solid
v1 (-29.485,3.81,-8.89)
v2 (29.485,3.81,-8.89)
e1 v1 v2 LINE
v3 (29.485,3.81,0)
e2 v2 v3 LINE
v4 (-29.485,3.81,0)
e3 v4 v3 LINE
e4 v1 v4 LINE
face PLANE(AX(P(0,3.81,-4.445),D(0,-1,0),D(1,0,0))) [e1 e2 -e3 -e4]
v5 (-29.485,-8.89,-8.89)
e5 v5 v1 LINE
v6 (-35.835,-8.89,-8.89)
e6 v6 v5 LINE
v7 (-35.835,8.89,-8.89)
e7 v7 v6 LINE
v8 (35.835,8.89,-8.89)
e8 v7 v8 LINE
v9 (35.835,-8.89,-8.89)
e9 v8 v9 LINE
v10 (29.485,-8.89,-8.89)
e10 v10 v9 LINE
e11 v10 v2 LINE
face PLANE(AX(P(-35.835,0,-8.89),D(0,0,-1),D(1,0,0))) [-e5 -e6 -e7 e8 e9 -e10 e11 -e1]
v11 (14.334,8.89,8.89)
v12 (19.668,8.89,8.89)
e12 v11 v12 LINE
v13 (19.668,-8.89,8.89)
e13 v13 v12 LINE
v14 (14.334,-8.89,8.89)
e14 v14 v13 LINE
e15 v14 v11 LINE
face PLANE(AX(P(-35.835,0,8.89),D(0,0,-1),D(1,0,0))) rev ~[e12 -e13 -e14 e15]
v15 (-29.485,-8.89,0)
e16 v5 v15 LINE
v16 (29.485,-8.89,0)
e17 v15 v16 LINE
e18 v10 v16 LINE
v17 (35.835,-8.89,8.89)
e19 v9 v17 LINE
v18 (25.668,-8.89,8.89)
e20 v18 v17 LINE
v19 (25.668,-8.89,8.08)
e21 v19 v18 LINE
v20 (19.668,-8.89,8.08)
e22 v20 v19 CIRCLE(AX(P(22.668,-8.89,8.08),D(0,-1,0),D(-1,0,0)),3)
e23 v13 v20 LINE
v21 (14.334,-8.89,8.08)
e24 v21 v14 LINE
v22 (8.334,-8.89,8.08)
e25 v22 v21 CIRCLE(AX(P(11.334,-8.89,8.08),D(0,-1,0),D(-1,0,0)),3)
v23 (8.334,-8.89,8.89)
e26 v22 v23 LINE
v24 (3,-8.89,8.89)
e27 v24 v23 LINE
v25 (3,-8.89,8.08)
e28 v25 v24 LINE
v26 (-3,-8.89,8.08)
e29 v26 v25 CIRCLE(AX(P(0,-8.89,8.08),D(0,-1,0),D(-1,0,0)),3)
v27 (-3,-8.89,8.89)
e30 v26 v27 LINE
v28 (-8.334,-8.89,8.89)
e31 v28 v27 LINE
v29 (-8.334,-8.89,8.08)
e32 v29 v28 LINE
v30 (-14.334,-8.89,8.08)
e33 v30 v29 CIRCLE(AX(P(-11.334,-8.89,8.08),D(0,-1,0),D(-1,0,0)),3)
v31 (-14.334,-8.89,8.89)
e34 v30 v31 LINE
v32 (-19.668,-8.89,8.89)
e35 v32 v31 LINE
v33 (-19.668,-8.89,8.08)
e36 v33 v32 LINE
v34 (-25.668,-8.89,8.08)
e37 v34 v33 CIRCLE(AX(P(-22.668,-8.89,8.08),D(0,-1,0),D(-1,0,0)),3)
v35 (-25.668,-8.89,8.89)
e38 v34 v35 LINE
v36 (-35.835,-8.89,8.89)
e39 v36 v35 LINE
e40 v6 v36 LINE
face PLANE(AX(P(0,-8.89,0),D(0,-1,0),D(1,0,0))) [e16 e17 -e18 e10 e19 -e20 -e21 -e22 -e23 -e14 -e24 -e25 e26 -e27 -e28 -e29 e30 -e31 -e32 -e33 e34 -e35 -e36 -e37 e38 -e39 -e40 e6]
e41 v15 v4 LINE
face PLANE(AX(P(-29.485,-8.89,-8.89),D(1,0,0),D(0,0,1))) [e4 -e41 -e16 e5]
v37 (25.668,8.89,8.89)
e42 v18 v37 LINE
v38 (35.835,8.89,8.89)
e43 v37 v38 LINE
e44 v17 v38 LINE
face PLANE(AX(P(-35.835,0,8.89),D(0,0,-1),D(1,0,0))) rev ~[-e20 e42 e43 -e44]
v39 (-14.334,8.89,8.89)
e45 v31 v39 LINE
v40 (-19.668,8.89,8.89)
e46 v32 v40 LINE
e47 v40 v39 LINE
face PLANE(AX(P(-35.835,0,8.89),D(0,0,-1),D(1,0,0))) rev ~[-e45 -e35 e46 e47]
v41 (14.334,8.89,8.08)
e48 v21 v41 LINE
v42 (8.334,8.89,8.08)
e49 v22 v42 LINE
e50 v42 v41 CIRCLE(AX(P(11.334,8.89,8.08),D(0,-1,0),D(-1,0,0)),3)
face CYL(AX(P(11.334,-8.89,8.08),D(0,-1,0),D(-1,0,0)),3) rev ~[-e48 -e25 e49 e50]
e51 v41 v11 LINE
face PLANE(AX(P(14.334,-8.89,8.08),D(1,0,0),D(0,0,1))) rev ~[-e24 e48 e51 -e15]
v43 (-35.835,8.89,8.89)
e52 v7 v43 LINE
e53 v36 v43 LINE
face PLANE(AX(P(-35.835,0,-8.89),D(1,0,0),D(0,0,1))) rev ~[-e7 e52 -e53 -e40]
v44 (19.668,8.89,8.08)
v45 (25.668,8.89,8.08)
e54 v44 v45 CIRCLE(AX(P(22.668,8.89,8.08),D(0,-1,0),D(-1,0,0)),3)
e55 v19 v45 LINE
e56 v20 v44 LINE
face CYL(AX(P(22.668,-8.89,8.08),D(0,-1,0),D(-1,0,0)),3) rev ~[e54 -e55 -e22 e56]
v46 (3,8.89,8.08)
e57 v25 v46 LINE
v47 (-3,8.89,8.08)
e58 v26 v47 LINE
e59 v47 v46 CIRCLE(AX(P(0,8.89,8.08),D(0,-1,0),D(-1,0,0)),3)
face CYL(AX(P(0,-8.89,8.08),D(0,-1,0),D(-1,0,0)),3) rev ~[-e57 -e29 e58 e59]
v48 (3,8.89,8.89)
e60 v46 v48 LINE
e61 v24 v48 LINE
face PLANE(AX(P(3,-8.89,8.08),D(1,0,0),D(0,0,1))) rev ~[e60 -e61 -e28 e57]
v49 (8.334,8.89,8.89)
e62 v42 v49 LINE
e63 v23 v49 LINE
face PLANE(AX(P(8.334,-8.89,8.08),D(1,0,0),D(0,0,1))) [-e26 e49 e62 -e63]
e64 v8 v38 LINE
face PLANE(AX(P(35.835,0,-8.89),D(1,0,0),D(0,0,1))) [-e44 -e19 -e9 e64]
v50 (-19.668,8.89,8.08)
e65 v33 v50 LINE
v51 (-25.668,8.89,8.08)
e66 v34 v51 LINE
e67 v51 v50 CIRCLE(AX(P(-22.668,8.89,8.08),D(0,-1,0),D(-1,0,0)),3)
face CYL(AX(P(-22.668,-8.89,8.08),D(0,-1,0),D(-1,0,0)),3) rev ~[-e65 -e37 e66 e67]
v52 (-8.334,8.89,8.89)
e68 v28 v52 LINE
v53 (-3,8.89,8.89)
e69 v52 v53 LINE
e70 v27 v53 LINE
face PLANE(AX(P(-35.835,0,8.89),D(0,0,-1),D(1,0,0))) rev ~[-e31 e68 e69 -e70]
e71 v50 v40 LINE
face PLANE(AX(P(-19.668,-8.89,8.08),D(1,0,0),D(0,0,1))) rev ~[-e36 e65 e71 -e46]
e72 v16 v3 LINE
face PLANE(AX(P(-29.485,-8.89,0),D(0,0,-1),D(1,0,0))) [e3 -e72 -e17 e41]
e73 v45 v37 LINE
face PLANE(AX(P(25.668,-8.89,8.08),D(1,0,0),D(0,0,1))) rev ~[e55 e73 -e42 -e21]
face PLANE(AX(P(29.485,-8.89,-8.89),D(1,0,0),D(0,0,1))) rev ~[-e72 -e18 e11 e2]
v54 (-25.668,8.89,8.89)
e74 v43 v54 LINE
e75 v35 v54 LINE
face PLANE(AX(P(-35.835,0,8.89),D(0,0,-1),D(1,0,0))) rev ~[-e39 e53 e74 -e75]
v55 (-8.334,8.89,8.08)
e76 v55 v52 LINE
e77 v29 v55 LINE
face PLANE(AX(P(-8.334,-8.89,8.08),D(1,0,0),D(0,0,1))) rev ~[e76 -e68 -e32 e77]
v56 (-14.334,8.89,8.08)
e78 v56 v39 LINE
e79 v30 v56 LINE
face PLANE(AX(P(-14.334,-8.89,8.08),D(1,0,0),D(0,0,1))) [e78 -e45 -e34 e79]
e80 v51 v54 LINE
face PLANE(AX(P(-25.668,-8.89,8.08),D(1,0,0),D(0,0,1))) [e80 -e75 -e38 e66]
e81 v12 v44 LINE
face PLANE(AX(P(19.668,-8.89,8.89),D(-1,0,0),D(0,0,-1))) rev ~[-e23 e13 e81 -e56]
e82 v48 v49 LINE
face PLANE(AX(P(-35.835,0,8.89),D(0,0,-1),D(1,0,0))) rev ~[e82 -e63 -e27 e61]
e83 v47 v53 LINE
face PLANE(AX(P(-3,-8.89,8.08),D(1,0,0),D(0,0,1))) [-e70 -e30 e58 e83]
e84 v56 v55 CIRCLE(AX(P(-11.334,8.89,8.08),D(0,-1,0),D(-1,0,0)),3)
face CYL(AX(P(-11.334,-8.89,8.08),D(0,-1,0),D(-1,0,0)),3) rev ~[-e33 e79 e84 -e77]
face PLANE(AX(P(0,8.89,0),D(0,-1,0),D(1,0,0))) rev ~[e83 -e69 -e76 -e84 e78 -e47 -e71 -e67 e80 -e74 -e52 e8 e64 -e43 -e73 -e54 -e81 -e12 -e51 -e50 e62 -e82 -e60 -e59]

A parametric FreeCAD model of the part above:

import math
import FreeCAD as App
import Part
import Sketcher
from FreeCAD import Vector
Q = App.Units.Quantity


def add_polygon(sketch, points):
    """Adds a closed chain of lines whose ends are joined by coincident constraints."""
    first, n = sketch.GeometryCount, len(points)
    for a, b in zip(points, points[1:] + points[:1]):
        sketch.addGeometry(Part.LineSegment(App.Vector(*a, 0), App.Vector(*b, 0)), False)
    for i in range(n):
        sketch.addConstraint(Sketcher.Constraint("Coincident", first + i, 2, first + (i + 1) % n, 1))

doc = App.newDocument("Part")
params = doc.addObject("Spreadsheet::Sheet", "Params")
for row, (alias, value) in enumerate([
    ("sketch1_height", "0.7 in"),
    ("pad1_length", "0.7 in"),
    ("sketch3_height", "0.35 in"),
    ("pocket2_length", "0.5 in"),
], start=1):
    params.set(f"A{row}", alias)
    params.set(f"B{row}", "=" + value)
    params.setAlias(f"B{row}", alias)

body = doc.addObject("PartDesign::Body", "Body")

sketch1 = body.newObject("Sketcher::SketchObject", "Sketch")
sketch1.AttachmentSupport = (doc.getObject("XZ_Plane"), [""])
sketch1.MapMode = "FlatFace"
add_polygon(sketch1, [(-35.835, 8.89), (-35.835, -8.89), (35.835, -8.89), (35.835, 8.89)])
sketch1.addConstraint([
    Sketcher.Constraint("Vertical", 0),
    Sketcher.Constraint("Horizontal", 1),
    Sketcher.Constraint("Vertical", 2),
    Sketcher.Constraint("Horizontal", 3),
    Sketcher.Constraint("Symmetric", 0, 2, 2, 2, -1, 1),
    Sketcher.Constraint("DistanceY", 0, 2, 0, 1, Q("0.7 in")),
    Sketcher.Constraint("DistanceX", 1, 1, 1, 2, 71.67),
])
sketch1.setExpression("Constraints[9]", "Params.sketch1_height")
pad1 = body.newObject("PartDesign::Pad", "Pad")
pad1.Profile = sketch1
pad1.setExpression("Length", "Params.pad1_length")
pad1.Midplane = True

sketch2 = body.newObject("Sketcher::SketchObject", "Sketch001")
sketch2.AttachmentSupport = (doc.getObject("XZ_Plane"), [""])
sketch2.MapMode = "FlatFace"
sketch2.AttachmentOffset = App.Placement(Vector(0, 0, 0.35 * 25.4), App.Rotation())
sketch2.addGeometry([
    Part.LineSegment(Vector(-25.668, 8.89, 0), Vector(-25.668, 8.08, 0)),
    Part.ArcOfCircle(Part.Circle(Vector(-22.668, 8.08, 0), Vector(0, 0, 1), 3), math.radians(180), math.radians(360)),
    Part.LineSegment(Vector(-19.668, 8.08, 0), Vector(-19.668, 8.89, 0)),
    Part.LineSegment(Vector(-19.668, 8.89, 0), Vector(-25.668, 8.89, 0)),
    Part.LineSegment(Vector(-14.334, 8.89, 0), Vector(-14.334, 8.08, 0)),
    Part.ArcOfCircle(Part.Circle(Vector(-11.334, 8.08, 0), Vector(0, 0, 1), 3), math.radians(180), math.radians(360)),
    Part.LineSegment(Vector(-8.334, 8.08, 0), Vector(-8.334, 8.89, 0)),
    Part.LineSegment(Vector(-8.334, 8.89, 0), Vector(-14.334, 8.89, 0)),
    Part.LineSegment(Vector(-3, 8.89, 0), Vector(-3, 8.08, 0)),
    Part.ArcOfCircle(Part.Circle(Vector(0, 8.08, 0), Vector(0, 0, 1), 3), math.radians(180), math.radians(360)),
    Part.LineSegment(Vector(3, 8.08, 0), Vector(3, 8.89, 0)),
    Part.LineSegment(Vector(3, 8.89, 0), Vector(-3, 8.89, 0)),
    Part.LineSegment(Vector(8.334, 8.89, 0), Vector(8.334, 8.08, 0)),
    Part.ArcOfCircle(Part.Circle(Vector(11.334, 8.08, 0), Vector(0, 0, 1), 3), math.radians(180), math.radians(360)),
    Part.LineSegment(Vector(14.334, 8.08, 0), Vector(14.334, 8.89, 0)),
    Part.LineSegment(Vector(14.334, 8.89, 0), Vector(8.334, 8.89, 0)),
    Part.LineSegment(Vector(25.668, 8.08, 0), Vector(25.668, 8.89, 0)),
    Part.LineSegment(Vector(25.668, 8.89, 0), Vector(19.668, 8.89, 0)),
    Part.LineSegment(Vector(19.668, 8.89, 0), Vector(19.668, 8.08, 0)),
    Part.ArcOfCircle(Part.Circle(Vector(22.668, 8.08, 0), Vector(0, 0, 1), 3), math.radians(180), math.radians(360)),
], False)
sketch2.addConstraint([
    Sketcher.Constraint("Tangent", 0, 2, 1, 1),
    Sketcher.Constraint("Tangent", 1, 2, 2, 1),
    Sketcher.Constraint("Coincident", 2, 2, 3, 1),
    Sketcher.Constraint("Coincident", 3, 2, 0, 1),
    Sketcher.Constraint("Tangent", 4, 2, 5, 1),
    Sketcher.Constraint("Tangent", 5, 2, 6, 1),
    Sketcher.Constraint("Coincident", 6, 2, 7, 1),
    Sketcher.Constraint("Coincident", 7, 2, 4, 1),
    Sketcher.Constraint("Tangent", 8, 2, 9, 1),
    Sketcher.Constraint("Tangent", 9, 2, 10, 1),
    Sketcher.Constraint("Coincident", 10, 2, 11, 1),
    Sketcher.Constraint("Coincident", 11, 2, 8, 1),
    Sketcher.Constraint("Tangent", 12, 2, 13, 1),
    Sketcher.Constraint("Tangent", 13, 2, 14, 1),
    Sketcher.Constraint("Coincident", 14, 2, 15, 1),
    Sketcher.Constraint("Coincident", 15, 2, 12, 1),
    Sketcher.Constraint("Coincident", 16, 2, 17, 1),
    Sketcher.Constraint("Coincident", 17, 2, 18, 1),
    Sketcher.Constraint("Tangent", 18, 2, 19, 1),
    Sketcher.Constraint("Tangent", 19, 2, 16, 1),
    Sketcher.Constraint("Vertical", 0),
    Sketcher.Constraint("Vertical", 2),
    Sketcher.Constraint("Horizontal", 3),
    Sketcher.Constraint("Vertical", 4),
    Sketcher.Constraint("Vertical", 6),
    Sketcher.Constraint("Horizontal", 7),
    Sketcher.Constraint("Vertical", 8),
    Sketcher.Constraint("Vertical", 10),
    Sketcher.Constraint("Horizontal", 11),
    Sketcher.Constraint("Vertical", 12),
    Sketcher.Constraint("Vertical", 14),
    Sketcher.Constraint("Horizontal", 15),
    Sketcher.Constraint("Vertical", 16),
    Sketcher.Constraint("Horizontal", 17),
    Sketcher.Constraint("Vertical", 18),
    Sketcher.Constraint("Equal", 1, 5),
    Sketcher.Constraint("Equal", 5, 9),
    Sketcher.Constraint("Equal", 9, 13),
    Sketcher.Constraint("Equal", 13, 19),
    Sketcher.Constraint("Symmetric", 5, 3, 13, 3, -2),
    Sketcher.Constraint("Symmetric", 1, 3, 19, 3, -2),
    Sketcher.Constraint("PointOnObject", 9, 3, -2),
    Sketcher.Constraint("Horizontal", 1, 3, 5, 3),
    Sketcher.Constraint("Horizontal", 5, 3, 9, 3),
    Sketcher.Constraint("Horizontal", 3, 2, 6, 2),
    Sketcher.Constraint("Horizontal", 7, 2, 10, 2),
    Sketcher.Constraint("Horizontal", 11, 2, 14, 2),
    Sketcher.Constraint("Horizontal", 15, 2, 16, 2),
    Sketcher.Constraint("DistanceY", -1, 1, 2, 2, Q("0.35 in")),
    Sketcher.Constraint("Radius", 1, 3.0),
    Sketcher.Constraint("DistanceX", 1, 2, 4, 2, Q("0.21 in")),
    Sketcher.Constraint("DistanceX", 5, 2, 8, 2, Q("0.21 in")),
    Sketcher.Constraint("DistanceY", 0, 2, 0, 1, 0.81),
])
pocket1 = body.newObject("PartDesign::Pocket", "Pocket")
pocket1.Profile = sketch2
pocket1.Type = "ThroughAll"

sketch3 = body.newObject("Sketcher::SketchObject", "Sketch002")
sketch3.AttachmentSupport = (doc.getObject("XZ_Plane"), [""])
sketch3.MapMode = "FlatFace"
sketch3.AttachmentOffset = App.Placement(Vector(0, 0, 0.35 * 25.4), App.Rotation())
add_polygon(sketch3, [(-29.485, 0), (-29.485, -8.89), (29.485, -8.89), (29.485, 0)])
sketch3.addConstraint([
    Sketcher.Constraint("Vertical", 0),
    Sketcher.Constraint("Horizontal", 1),
    Sketcher.Constraint("Vertical", 2),
    Sketcher.Constraint("Horizontal", 3),
    Sketcher.Constraint("Symmetric", 2, 2, 3, 2, -1, 1),
    Sketcher.Constraint("DistanceY", 0, 2, 0, 1, Q("0.35 in")),
    Sketcher.Constraint("DistanceX", 1, 1, 1, 2, 58.97),
])
sketch3.setExpression("Constraints[9]", "Params.sketch3_height")
pocket2 = body.newObject("PartDesign::Pocket", "Pocket001")
pocket2.Profile = sketch3
pocket2.setExpression("Length", "Params.pocket2_length")

doc.recompute()
